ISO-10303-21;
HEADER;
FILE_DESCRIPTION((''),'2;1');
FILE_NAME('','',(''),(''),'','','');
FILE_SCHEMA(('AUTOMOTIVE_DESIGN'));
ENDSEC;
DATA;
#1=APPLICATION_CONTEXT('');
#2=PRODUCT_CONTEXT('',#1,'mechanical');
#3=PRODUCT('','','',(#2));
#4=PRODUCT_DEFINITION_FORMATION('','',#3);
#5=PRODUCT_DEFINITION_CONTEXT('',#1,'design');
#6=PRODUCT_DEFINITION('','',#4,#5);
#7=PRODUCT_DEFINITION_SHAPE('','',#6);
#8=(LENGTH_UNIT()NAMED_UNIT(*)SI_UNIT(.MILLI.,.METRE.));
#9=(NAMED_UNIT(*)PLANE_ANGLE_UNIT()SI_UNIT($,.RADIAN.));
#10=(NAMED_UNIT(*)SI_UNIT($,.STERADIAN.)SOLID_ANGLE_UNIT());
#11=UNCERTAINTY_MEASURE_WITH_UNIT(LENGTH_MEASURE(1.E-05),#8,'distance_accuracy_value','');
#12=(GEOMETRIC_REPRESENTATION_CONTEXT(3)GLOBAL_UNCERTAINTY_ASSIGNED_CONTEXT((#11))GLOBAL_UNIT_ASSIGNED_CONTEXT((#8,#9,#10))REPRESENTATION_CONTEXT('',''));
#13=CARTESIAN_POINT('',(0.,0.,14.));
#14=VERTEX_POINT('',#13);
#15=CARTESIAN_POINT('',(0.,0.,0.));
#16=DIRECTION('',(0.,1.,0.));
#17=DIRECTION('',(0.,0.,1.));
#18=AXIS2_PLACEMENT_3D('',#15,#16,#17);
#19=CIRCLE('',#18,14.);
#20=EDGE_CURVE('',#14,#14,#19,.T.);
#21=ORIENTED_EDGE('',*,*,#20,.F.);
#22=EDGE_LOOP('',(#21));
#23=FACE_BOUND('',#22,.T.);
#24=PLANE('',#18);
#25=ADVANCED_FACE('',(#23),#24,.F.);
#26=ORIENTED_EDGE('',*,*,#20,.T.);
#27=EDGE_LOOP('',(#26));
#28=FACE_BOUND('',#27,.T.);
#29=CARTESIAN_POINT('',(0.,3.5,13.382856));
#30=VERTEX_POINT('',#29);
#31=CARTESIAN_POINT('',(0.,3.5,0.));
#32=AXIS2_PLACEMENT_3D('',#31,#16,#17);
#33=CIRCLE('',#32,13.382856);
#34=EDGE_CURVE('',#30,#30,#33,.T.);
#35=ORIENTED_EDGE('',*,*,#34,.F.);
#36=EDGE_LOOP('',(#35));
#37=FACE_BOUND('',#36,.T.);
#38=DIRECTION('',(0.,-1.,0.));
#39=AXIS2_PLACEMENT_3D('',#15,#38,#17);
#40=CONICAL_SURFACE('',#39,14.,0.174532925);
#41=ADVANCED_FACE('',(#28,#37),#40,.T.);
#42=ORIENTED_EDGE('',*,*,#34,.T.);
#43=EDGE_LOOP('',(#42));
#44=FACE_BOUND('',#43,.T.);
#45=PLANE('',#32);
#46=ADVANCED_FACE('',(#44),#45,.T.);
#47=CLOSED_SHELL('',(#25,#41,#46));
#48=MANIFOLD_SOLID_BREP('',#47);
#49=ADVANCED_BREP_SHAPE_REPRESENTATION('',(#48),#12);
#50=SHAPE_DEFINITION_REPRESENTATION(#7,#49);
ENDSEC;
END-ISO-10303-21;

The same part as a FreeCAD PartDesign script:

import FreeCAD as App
import Part
import Sketcher

V = App.Vector
Q = App.Units.Quantity

doc = App.newDocument("Part")
body = doc.addObject("PartDesign::Body", "Body")

# Sketch on XZ plane
sketch1 = body.newObject("Sketcher::SketchObject", "Sketch")
sketch1.AttachmentSupport = (doc.getObject("XZ_Plane"), [""])
sketch1.MapMode = "FlatFace"
sketch1.addGeometry(Part.Circle(V(0, 0, 0), V(0, 0, 1), 14), False)
sketch1.addConstraint(Sketcher.Constraint("Coincident", 0, 3, -1, 1))
sketch1.addConstraint(Sketcher.Constraint("Diameter", 0, Q("28 mm")))
pad1 = body.newObject("PartDesign::Pad", "Pad")
pad1.Profile = sketch1
pad1.Length = 3.5
pad1.Reversed = True
pad1.TaperAngle = -10

doc.recompute()
